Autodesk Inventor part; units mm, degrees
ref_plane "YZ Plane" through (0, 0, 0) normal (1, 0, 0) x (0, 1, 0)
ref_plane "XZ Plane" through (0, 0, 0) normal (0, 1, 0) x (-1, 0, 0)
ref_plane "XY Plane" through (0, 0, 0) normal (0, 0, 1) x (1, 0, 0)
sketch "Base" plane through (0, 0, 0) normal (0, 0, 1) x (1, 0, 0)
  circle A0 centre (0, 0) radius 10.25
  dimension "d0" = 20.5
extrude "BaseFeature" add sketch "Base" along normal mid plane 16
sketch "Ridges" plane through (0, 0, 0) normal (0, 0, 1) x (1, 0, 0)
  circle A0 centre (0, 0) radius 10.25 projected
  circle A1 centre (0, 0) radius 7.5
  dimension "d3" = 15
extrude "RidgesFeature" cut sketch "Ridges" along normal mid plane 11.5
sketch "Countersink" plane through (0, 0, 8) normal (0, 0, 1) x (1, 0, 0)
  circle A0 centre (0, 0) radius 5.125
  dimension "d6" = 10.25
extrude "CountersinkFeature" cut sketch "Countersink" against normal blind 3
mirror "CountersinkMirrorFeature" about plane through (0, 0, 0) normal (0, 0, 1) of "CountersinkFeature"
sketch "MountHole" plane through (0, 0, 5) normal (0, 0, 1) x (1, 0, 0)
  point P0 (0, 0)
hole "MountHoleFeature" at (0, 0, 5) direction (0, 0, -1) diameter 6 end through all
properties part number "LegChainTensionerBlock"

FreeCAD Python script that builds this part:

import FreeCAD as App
import Part
import Sketcher

V = App.Vector

doc = App.newDocument("Part")
body = doc.addObject("PartDesign::Body", "Body")

# Sketch on XY plane
sketch1 = body.newObject("Sketcher::SketchObject", "Sketch")
sketch1.AttachmentSupport = (doc.getObject("XY_Plane"), [""])
sketch1.MapMode = "FlatFace"
sketch1.addGeometry(Part.Circle(V(0, 0, 0), V(0, 0, 1), 10), False)
sketch1.addConstraint(Sketcher.Constraint("Coincident", 0, 3, -1, 1))
sketch1.addConstraint(Sketcher.Constraint("Diameter", 0, 20.5))
pad1 = body.newObject("PartDesign::Pad", "Pad")
pad1.Profile = sketch1
pad1.Length = 16
pad1.Midplane = True

# Sketch on XY plane
sketch2 = body.newObject("Sketcher::SketchObject", "Sketch001")
sketch2.AttachmentSupport = (doc.getObject("XY_Plane"), [""])
sketch2.MapMode = "FlatFace"
sketch2.addGeometry(Part.Circle(V(0, 0, 0), V(0, 0, 1), 10), False)
sketch2.addGeometry(Part.Circle(V(0, 0, 0), V(0, 0, 1), 8), False)
sketch2.addConstraint(Sketcher.Constraint("Coincident", 0, 3, -1, 1))
sketch2.addConstraint(Sketcher.Constraint("Coincident", 1, 3, -1, 1))
sketch2.addConstraint(Sketcher.Constraint("Diameter", 1, 15.0))
sketch2.addConstraint(Sketcher.Constraint("Diameter", 0, 20.5))
pocket1 = body.newObject("PartDesign::Pocket", "Pocket")
pocket1.Profile = sketch2
pocket1.Length = 11.5
pocket1.Midplane = True

# Sketch on XY plane
sketch3 = body.newObject("Sketcher::SketchObject", "Sketch002")
sketch3.AttachmentSupport = (doc.getObject("XY_Plane"), [""])
sketch3.MapMode = "FlatFace"
sketch3.AttachmentOffset = App.Placement(V(0, 0, 8), App.Rotation())
sketch3.addGeometry(Part.Circle(V(0, 0, 0), V(0, 0, 1), 5), False)
sketch3.addConstraint(Sketcher.Constraint("Coincident", 0, 3, -1, 1))
sketch3.addConstraint(Sketcher.Constraint("Diameter", 0, 10.25))
pocket2 = body.newObject("PartDesign::Pocket", "Pocket001")
pocket2.Profile = sketch3
pocket2.Length = 3
doc.recompute()

mirrored = body.newObject("PartDesign::Mirrored", "Mirrored")
mirrored.Originals = [pocket2]
mirrored.MirrorPlane = (doc.getObject("XY_Plane"), [""])
body.Tip = mirrored

# Sketch on XY plane
sketch4 = body.newObject("Sketcher::SketchObject", "Sketch003")
sketch4.AttachmentSupport = (doc.getObject("XY_Plane"), [""])
sketch4.MapMode = "FlatFace"
sketch4.AttachmentOffset = App.Placement(V(0, 0, 5), App.Rotation())
sketch4.addGeometry(Part.Circle(V(0, 0, 0), V(0, 0, 1), 3), False)
sketch4.addConstraint(Sketcher.Constraint("Coincident", 0, 3, -1, 1))
sketch4.addConstraint(Sketcher.Constraint("Diameter", 0, 6.0))
doc.recompute()
hole = body.newObject("PartDesign::Hole", "Hole")
hole.Profile = sketch4
hole.ThreadType = "None"
hole.Diameter = 6
hole.DepthType = "ThroughAll"

doc.recompute()
